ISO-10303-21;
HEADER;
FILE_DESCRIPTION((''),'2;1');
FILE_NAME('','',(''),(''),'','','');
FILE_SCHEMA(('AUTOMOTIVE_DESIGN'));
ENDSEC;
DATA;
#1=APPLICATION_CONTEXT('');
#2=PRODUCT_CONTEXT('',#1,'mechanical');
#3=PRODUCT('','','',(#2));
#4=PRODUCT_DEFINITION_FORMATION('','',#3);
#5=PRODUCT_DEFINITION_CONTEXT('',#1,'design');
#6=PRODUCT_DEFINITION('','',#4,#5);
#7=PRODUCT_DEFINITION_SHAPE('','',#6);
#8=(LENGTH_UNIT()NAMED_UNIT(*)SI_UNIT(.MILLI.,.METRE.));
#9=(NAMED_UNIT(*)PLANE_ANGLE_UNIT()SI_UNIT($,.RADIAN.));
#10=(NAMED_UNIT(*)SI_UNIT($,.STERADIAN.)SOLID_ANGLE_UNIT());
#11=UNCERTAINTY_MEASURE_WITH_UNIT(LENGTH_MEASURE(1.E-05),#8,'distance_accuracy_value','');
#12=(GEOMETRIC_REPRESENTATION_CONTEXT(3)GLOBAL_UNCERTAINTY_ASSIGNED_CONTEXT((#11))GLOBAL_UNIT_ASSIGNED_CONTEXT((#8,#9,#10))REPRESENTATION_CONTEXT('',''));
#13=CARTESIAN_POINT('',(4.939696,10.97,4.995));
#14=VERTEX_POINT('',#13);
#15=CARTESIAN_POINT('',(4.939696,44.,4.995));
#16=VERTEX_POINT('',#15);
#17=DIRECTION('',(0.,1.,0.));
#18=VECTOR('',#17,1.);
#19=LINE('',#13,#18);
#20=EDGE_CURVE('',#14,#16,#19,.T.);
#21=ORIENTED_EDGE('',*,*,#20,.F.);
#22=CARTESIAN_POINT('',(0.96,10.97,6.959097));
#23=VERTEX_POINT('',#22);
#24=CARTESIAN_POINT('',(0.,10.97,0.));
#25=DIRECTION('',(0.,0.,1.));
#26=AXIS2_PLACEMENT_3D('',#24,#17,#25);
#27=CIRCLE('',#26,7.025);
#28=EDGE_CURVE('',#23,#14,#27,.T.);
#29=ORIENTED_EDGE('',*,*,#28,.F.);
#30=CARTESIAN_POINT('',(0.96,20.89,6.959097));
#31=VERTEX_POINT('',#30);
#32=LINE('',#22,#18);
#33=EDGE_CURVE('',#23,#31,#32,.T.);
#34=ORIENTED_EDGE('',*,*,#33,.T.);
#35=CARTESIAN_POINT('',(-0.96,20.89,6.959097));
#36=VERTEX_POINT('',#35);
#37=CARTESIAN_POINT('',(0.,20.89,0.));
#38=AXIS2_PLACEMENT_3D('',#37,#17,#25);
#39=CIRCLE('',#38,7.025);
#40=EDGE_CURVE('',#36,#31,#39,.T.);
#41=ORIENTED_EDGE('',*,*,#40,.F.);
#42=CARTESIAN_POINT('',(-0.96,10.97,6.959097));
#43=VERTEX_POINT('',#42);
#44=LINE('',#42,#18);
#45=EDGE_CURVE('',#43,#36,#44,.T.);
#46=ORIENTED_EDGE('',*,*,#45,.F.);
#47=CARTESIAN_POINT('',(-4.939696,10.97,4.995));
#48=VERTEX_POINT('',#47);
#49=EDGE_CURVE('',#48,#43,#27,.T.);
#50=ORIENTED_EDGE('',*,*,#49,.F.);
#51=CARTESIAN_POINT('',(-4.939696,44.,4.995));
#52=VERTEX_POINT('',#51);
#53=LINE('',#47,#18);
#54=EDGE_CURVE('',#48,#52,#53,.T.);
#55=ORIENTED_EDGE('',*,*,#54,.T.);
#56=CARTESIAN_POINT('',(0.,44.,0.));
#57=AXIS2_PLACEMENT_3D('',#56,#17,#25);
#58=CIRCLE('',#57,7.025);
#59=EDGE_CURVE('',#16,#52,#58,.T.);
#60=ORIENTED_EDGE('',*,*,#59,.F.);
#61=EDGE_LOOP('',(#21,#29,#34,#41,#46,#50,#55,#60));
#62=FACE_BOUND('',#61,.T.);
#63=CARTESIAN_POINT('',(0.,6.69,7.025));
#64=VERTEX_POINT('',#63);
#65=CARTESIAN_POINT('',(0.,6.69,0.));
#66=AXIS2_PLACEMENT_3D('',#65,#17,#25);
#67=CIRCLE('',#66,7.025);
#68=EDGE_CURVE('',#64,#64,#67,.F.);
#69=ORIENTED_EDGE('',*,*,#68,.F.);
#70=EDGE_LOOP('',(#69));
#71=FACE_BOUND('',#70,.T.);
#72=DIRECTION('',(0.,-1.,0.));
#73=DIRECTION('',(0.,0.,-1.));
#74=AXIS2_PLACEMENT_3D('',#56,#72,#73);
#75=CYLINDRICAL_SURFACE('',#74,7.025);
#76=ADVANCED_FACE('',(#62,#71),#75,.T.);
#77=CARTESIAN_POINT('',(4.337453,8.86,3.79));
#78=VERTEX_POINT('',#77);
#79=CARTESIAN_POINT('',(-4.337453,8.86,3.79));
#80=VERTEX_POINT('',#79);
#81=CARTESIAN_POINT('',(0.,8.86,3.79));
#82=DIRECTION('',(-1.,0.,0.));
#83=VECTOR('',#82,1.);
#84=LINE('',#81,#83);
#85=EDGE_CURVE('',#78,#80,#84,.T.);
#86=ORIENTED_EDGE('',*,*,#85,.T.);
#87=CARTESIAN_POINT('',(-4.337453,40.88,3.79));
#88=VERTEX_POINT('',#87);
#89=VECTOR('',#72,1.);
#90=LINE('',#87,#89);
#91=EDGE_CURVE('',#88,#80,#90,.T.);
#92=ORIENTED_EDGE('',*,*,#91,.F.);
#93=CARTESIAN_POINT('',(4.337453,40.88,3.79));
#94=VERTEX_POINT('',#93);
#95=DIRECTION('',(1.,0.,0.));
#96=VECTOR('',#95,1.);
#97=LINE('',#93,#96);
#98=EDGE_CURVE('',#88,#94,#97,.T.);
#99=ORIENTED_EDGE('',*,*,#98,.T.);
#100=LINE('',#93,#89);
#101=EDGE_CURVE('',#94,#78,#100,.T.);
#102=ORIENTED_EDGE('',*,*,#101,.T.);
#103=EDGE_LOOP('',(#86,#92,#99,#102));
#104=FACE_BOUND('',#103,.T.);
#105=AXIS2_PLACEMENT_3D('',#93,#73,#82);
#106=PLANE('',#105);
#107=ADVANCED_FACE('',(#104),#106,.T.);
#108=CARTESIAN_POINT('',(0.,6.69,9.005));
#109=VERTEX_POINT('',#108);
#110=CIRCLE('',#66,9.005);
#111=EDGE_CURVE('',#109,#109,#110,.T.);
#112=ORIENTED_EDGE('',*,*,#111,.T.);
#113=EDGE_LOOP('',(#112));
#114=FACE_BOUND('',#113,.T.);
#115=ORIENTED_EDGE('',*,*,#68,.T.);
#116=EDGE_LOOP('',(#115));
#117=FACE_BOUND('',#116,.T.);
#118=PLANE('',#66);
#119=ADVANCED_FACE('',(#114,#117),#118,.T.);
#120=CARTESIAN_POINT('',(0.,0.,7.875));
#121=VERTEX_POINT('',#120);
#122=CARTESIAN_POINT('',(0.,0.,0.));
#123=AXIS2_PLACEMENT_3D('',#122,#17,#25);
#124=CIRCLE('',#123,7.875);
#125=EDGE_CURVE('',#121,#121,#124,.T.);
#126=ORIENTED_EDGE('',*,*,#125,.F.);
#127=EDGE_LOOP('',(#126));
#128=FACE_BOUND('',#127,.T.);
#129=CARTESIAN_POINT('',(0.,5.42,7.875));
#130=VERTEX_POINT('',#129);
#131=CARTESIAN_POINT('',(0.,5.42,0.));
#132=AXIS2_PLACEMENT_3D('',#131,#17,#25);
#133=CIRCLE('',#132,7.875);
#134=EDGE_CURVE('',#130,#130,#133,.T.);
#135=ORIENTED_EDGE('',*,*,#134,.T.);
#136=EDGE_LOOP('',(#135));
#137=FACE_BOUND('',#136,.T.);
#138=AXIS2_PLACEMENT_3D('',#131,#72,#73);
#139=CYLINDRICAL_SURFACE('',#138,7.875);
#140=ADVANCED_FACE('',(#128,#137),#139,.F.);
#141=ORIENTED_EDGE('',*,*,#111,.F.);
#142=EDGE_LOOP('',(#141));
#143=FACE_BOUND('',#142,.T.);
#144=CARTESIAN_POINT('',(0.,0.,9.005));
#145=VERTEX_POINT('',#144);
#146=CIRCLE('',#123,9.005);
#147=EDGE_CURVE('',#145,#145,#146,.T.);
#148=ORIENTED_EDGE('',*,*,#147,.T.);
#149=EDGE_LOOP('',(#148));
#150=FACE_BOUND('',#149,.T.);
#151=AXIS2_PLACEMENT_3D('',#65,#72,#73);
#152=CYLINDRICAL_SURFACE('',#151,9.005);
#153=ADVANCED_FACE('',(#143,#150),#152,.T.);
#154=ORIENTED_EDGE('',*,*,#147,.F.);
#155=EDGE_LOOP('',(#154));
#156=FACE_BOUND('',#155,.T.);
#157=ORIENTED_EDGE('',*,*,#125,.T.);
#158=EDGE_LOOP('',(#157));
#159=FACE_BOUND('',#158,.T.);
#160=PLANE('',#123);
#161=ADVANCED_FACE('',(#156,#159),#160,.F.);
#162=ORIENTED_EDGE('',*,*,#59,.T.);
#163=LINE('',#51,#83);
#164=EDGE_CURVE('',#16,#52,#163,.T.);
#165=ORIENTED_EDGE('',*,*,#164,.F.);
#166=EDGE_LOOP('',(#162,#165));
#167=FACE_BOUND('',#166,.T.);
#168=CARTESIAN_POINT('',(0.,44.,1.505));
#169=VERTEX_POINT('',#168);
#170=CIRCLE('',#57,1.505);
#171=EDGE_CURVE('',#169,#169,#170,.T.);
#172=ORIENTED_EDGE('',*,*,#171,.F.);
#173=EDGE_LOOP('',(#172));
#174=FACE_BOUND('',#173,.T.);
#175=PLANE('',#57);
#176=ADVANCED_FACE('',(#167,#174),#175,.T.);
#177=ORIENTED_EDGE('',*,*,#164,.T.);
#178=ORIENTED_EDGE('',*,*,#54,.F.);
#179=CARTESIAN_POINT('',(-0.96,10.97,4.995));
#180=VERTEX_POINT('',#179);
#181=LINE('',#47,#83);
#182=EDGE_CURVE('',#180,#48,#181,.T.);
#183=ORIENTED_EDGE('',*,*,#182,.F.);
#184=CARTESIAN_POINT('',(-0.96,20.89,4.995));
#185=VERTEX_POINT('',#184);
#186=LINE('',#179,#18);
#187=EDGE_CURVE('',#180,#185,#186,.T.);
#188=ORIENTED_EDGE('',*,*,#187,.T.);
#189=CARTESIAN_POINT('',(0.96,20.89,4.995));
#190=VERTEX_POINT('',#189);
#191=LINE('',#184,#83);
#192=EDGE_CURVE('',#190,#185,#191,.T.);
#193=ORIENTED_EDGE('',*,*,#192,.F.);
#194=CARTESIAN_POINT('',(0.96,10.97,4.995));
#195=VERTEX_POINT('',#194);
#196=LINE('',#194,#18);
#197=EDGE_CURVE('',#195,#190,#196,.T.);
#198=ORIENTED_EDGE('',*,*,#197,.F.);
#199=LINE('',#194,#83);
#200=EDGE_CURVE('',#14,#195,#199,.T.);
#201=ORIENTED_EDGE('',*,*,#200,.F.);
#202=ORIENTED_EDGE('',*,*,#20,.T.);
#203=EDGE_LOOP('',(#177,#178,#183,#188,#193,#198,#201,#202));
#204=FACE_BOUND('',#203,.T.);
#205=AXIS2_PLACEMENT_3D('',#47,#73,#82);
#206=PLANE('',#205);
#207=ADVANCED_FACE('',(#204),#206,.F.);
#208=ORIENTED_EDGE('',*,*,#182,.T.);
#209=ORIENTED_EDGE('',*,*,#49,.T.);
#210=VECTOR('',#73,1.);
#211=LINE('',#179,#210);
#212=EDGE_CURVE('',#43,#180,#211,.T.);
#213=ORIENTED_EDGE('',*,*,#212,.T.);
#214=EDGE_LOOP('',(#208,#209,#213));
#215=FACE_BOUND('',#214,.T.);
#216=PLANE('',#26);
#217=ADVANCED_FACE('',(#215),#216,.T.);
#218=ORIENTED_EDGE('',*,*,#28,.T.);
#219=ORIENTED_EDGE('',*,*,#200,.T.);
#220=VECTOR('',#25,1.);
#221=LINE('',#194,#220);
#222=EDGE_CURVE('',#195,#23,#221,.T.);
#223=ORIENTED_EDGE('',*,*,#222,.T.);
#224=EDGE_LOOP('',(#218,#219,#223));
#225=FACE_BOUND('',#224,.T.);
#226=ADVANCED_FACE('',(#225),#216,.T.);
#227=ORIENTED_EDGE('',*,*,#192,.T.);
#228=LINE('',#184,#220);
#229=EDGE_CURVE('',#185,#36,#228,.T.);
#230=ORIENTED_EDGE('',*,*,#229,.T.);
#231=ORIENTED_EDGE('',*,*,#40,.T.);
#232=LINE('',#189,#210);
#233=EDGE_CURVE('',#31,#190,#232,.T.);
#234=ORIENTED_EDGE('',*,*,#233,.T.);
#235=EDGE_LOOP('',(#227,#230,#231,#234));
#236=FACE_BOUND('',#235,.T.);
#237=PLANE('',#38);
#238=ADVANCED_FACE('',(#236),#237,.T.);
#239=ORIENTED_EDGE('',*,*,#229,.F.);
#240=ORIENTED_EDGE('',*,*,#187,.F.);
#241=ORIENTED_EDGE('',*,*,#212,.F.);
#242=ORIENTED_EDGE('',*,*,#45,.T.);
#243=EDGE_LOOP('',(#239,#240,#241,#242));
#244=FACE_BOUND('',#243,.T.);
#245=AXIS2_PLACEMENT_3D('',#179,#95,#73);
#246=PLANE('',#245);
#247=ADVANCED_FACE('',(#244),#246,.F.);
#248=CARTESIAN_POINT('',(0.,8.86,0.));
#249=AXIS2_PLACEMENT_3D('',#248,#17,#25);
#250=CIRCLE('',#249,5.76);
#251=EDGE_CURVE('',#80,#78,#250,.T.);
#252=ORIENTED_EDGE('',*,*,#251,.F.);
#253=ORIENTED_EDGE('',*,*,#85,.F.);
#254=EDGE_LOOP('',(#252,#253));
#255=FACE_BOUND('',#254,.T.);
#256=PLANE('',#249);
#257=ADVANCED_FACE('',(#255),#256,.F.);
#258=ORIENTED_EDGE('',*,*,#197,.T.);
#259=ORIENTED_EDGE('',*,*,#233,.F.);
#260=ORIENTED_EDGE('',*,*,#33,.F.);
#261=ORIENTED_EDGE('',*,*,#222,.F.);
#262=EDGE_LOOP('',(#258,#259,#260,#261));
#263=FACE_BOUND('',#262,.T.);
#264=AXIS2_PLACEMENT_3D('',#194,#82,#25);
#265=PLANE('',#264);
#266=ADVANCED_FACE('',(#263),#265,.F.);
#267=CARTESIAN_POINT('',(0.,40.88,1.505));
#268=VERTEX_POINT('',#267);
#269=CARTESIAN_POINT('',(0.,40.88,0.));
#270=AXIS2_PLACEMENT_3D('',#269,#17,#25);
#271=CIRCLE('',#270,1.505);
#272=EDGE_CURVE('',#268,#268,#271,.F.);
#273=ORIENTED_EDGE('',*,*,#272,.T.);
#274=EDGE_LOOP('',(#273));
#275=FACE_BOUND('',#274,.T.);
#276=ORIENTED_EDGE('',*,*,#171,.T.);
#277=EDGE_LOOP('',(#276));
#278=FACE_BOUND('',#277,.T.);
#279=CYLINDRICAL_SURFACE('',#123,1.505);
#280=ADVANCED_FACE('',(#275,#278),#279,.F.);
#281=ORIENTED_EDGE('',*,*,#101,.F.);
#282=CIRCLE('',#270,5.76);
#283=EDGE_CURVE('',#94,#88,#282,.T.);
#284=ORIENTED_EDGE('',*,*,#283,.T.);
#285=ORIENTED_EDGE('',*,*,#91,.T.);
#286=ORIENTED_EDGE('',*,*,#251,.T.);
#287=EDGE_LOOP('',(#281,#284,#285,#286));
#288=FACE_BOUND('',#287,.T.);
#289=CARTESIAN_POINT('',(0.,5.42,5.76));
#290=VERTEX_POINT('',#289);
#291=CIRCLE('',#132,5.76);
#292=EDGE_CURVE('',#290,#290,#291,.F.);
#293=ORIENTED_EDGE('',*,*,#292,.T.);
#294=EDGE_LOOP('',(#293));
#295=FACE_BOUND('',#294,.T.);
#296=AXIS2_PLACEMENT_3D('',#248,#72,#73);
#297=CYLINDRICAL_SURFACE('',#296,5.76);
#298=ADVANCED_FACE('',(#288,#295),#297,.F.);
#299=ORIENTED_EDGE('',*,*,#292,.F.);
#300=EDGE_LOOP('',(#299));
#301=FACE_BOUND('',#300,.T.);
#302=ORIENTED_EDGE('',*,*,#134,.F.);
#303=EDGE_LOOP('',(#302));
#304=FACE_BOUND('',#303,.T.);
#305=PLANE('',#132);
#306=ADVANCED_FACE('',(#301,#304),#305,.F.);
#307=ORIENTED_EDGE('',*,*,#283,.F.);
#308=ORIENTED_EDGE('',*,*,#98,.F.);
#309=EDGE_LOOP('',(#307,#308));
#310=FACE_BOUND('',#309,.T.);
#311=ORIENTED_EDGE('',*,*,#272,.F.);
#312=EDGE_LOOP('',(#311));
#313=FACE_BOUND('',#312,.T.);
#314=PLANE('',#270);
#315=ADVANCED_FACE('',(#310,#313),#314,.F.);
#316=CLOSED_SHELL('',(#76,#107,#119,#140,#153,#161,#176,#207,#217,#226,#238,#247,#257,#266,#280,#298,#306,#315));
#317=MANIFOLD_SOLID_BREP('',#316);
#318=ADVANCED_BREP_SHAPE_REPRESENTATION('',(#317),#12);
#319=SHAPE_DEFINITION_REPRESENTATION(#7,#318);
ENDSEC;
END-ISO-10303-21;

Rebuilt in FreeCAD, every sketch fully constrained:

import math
import FreeCAD as App
import Part
import Sketcher

V = App.Vector
Q = App.Units.Quantity

doc = App.newDocument("Part")
params = doc.addObject("Spreadsheet::Sheet", "Params")
for row, (alias, value) in enumerate([
    ("sketch1_diameter", "18.01 mm"),
    ("pad1_length", "6.69 mm"),
    ("sketch2_diameter", "14.05 mm"),
    ("pad2_length", "44 mm"),
    ("pocket1_length", "33.03 mm"),
    ("sketch4_width", "1.92 mm"),
    ("pocket2_length", "23.11 mm"),
    ("sketch5_diameter", "3.01 mm"),
    ("sketch6_diameter", "15.75 mm"),
    ("pocket4_length", "5.42 mm"),
    ("sketch7_diameter", "11.52 mm"),
    ("pocket5_length", "8.86 mm"),
    ("sketch8_radius", "5.76 mm"),
    ("pocket6_length", "40.88 mm"),
], start=1):
    params.set(f"A{row}", alias)
    params.set(f"B{row}", "=" + value)
    params.setAlias(f"B{row}", alias)

body = doc.addObject("PartDesign::Body", "Body")

# Sketch on XZ plane
sketch1 = body.newObject("Sketcher::SketchObject", "Sketch")
sketch1.AttachmentSupport = (doc.getObject("XZ_Plane"), [""])
sketch1.MapMode = "FlatFace"
sketch1.addGeometry(Part.Circle(V(0, 0, 0), V(0, 0, 1), 9), False)
sketch1.addConstraint([
    Sketcher.Constraint("Coincident", 0, 3, -1, 1),
    Sketcher.Constraint("Diameter", 0, Q("18.01 mm")),
])
sketch1.setExpression("Constraints[1]", "Params.sketch1_diameter")
pad1 = body.newObject("PartDesign::Pad", "Pad")
pad1.Profile = sketch1
pad1.setExpression("Length", "Params.pad1_length")
pad1.Reversed = True

# Sketch on XZ plane
sketch2 = body.newObject("Sketcher::SketchObject", "Sketch001")
sketch2.AttachmentSupport = (doc.getObject("XZ_Plane"), [""])
sketch2.MapMode = "FlatFace"
sketch2.addGeometry(Part.Circle(V(0, 0, 0), V(0, 0, 1), 7), False)
sketch2.addConstraint([
    Sketcher.Constraint("Coincident", 0, 3, -1, 1),
    Sketcher.Constraint("Diameter", 0, Q("14.05 mm")),
])
sketch2.setExpression("Constraints[1]", "Params.sketch2_diameter")
pad2 = body.newObject("PartDesign::Pad", "Pad001")
pad2.Profile = sketch2
pad2.setExpression("Length", "Params.pad2_length")
pad2.Reversed = True

# Sketch on XZ plane
sketch3 = body.newObject("Sketcher::SketchObject", "Sketch002")
sketch3.AttachmentSupport = (doc.getObject("XZ_Plane"), [""])
sketch3.MapMode = "FlatFace"
sketch3.AttachmentOffset = App.Placement(V(0, 0, -44), App.Rotation())
sketch3.addGeometry([
    Part.LineSegment(V(-1, 5, 0), V(-4.9, 5, 0)),  # 0
    Part.ArcOfCircle(Part.Circle(V(0, 0, 0), V(0, 0, 1), 7), math.radians(98), math.radians(135)),  # 1
    Part.LineSegment(V(-1, 7, 0), V(-1, 5, 0)),  # 2
    Part.LineSegment(V(1, 5, 0), V(1, 7, 0)),  # 3
    Part.ArcOfCircle(Part.Circle(V(0, 0, 0), V(0, 0, 1), 7), math.radians(45), math.radians(82)),  # 4
    Part.LineSegment(V(4.9, 5, 0), V(1, 5, 0)),  # 5
], False)
sketch3.addConstraint([
    Sketcher.Constraint("Coincident", 0, 2, 1, 2),
    Sketcher.Constraint("Coincident", 1, 1, 2, 1),
    Sketcher.Constraint("Coincident", 2, 2, 0, 1),
    Sketcher.Constraint("Coincident", 3, 2, 4, 2),
    Sketcher.Constraint("Coincident", 4, 1, 5, 1),
    Sketcher.Constraint("Coincident", 5, 2, 3, 1),
    Sketcher.Constraint("Horizontal", 0),
    Sketcher.Constraint("Vertical", 2),
    Sketcher.Constraint("Vertical", 3),
    Sketcher.Constraint("Horizontal", 5),
    Sketcher.Constraint("Coincident", 1, 3, -1, 1),
    Sketcher.Constraint("Coincident", 4, 3, -1, 1),
    Sketcher.Constraint("Equal", 1, 4),
    Sketcher.Constraint("Symmetric", 2, 2, 5, 2, -2),
    Sketcher.Constraint("Radius", 1, Q("7.025 mm")),
    Sketcher.Constraint("DistanceX", 1, 1, -1, 1, Q("0.96 mm")),
    Sketcher.Constraint("DistanceY", -1, 1, 0, 2, Q("4.995 mm")),
])
pocket1 = body.newObject("PartDesign::Pocket", "Pocket")
pocket1.Profile = sketch3
pocket1.setExpression("Length", "Params.pocket1_length")
pocket1.Reversed = True

# Sketch on XZ plane
sketch4 = body.newObject("Sketcher::SketchObject", "Sketch003")
sketch4.AttachmentSupport = (doc.getObject("XZ_Plane"), [""])
sketch4.MapMode = "FlatFace"
sketch4.AttachmentOffset = App.Placement(V(0, 0, -44), App.Rotation())
sketch4.addGeometry([
    Part.LineSegment(V(1, 5, 0), V(-1, 5, 0)),
    Part.LineSegment(V(-1, 5, 0), V(-1, 7, 0)),
    Part.ArcOfCircle(Part.Circle(V(0, 0, 0), V(0, 0, 1), 7), math.radians(82.15), math.radians(97.85)),
    Part.LineSegment(V(1, 7, 0), V(1, 5, 0)),
], False)
sketch4.addConstraint([
    Sketcher.Constraint("Coincident", 0, 2, 1, 1),
    Sketcher.Constraint("Coincident", 1, 2, 2, 2),
    Sketcher.Constraint("Coincident", 2, 1, 3, 1),
    Sketcher.Constraint("Coincident", 3, 2, 0, 1),
    Sketcher.Constraint("Horizontal", 0),
    Sketcher.Constraint("Vertical", 1),
    Sketcher.Constraint("Vertical", 3),
    Sketcher.Constraint("Coincident", 2, 3, -1, 1),
    Sketcher.Constraint("Horizontal", 1, 2, 2, 1),
    Sketcher.Constraint("Radius", 2, Q("7.025 mm")),
    Sketcher.Constraint("DistanceX", 0, 2, 0, 1, Q("1.92 mm")),
    Sketcher.Constraint("DistanceY", -1, 1, 0, 2, Q("4.995 mm")),
])
sketch4.setExpression("Constraints[10]", "Params.sketch4_width")
pocket2 = body.newObject("PartDesign::Pocket", "Pocket001")
pocket2.Profile = sketch4
pocket2.setExpression("Length", "Params.pocket2_length")
pocket2.Reversed = True

# Sketch on XZ plane
sketch5 = body.newObject("Sketcher::SketchObject", "Sketch004")
sketch5.AttachmentSupport = (doc.getObject("XZ_Plane"), [""])
sketch5.MapMode = "FlatFace"
sketch5.AttachmentOffset = App.Placement(V(0, 0, -44), App.Rotation())
sketch5.addGeometry(Part.Circle(V(0, 0, 0), V(0, 0, 1), 1.5), False)
sketch5.addConstraint([
    Sketcher.Constraint("Coincident", 0, 3, -1, 1),
    Sketcher.Constraint("Diameter", 0, Q("3.01 mm")),
])
sketch5.setExpression("Constraints[1]", "Params.sketch5_diameter")
pocket3 = body.newObject("PartDesign::Pocket", "Pocket002")
pocket3.Profile = sketch5
pocket3.Type = "ThroughAll"
pocket3.Reversed = True

# Sketch on XZ plane
sketch6 = body.newObject("Sketcher::SketchObject", "Sketch005")
sketch6.AttachmentSupport = (doc.getObject("XZ_Plane"), [""])
sketch6.MapMode = "FlatFace"
sketch6.addGeometry(Part.Circle(V(0, 0, 0), V(0, 0, 1), 8), False)
sketch6.addConstraint([
    Sketcher.Constraint("Coincident", 0, 3, -1, 1),
    Sketcher.Constraint("Diameter", 0, Q("15.75 mm")),
])
sketch6.setExpression("Constraints[1]", "Params.sketch6_diameter")
pocket4 = body.newObject("PartDesign::Pocket", "Pocket003")
pocket4.Profile = sketch6
pocket4.setExpression("Length", "Params.pocket4_length")

# Sketch on XZ plane
sketch7 = body.newObject("Sketcher::SketchObject", "Sketch006")
sketch7.AttachmentSupport = (doc.getObject("XZ_Plane"), [""])
sketch7.MapMode = "FlatFace"
sketch7.addGeometry(Part.Circle(V(0, 0, 0), V(0, 0, 1), 6), False)
sketch7.addConstraint([
    Sketcher.Constraint("Coincident", 0, 3, -1, 1),
    Sketcher.Constraint("Diameter", 0, Q("11.52 mm")),
])
sketch7.setExpression("Constraints[1]", "Params.sketch7_diameter")
pocket5 = body.newObject("PartDesign::Pocket", "Pocket004")
pocket5.Profile = sketch7
pocket5.setExpression("Length", "Params.pocket5_length")

# Sketch on XZ plane
sketch8 = body.newObject("Sketcher::SketchObject", "Sketch007")
sketch8.AttachmentSupport = (doc.getObject("XZ_Plane"), [""])
sketch8.MapMode = "FlatFace"
sketch8.addGeometry([
    Part.LineSegment(V(-4, 4, 0), V(4, 4, 0)),
    Part.ArcOfCircle(Part.Circle(V(0, 0, 0), V(0, 0, 1), 6), math.radians(139), math.radians(401)),
], False)
sketch8.addConstraint([
    Sketcher.Constraint("Coincident", 0, 1, 1, 1),
    Sketcher.Constraint("Coincident", 1, 2, 0, 2),
    Sketcher.Constraint("Horizontal", 0),
    Sketcher.Constraint("Coincident", 1, 3, -1, 1),
    Sketcher.Constraint("Radius", 1, Q("5.76 mm")),
    Sketcher.Constraint("DistanceY", -1, 1, 0, 1, Q("3.79 mm")),
])
sketch8.setExpression("Constraints[4]", "Params.sketch8_radius")
pocket6 = body.newObject("PartDesign::Pocket", "Pocket005")
pocket6.Profile = sketch8
pocket6.setExpression("Length", "Params.pocket6_length")

doc.recompute()
